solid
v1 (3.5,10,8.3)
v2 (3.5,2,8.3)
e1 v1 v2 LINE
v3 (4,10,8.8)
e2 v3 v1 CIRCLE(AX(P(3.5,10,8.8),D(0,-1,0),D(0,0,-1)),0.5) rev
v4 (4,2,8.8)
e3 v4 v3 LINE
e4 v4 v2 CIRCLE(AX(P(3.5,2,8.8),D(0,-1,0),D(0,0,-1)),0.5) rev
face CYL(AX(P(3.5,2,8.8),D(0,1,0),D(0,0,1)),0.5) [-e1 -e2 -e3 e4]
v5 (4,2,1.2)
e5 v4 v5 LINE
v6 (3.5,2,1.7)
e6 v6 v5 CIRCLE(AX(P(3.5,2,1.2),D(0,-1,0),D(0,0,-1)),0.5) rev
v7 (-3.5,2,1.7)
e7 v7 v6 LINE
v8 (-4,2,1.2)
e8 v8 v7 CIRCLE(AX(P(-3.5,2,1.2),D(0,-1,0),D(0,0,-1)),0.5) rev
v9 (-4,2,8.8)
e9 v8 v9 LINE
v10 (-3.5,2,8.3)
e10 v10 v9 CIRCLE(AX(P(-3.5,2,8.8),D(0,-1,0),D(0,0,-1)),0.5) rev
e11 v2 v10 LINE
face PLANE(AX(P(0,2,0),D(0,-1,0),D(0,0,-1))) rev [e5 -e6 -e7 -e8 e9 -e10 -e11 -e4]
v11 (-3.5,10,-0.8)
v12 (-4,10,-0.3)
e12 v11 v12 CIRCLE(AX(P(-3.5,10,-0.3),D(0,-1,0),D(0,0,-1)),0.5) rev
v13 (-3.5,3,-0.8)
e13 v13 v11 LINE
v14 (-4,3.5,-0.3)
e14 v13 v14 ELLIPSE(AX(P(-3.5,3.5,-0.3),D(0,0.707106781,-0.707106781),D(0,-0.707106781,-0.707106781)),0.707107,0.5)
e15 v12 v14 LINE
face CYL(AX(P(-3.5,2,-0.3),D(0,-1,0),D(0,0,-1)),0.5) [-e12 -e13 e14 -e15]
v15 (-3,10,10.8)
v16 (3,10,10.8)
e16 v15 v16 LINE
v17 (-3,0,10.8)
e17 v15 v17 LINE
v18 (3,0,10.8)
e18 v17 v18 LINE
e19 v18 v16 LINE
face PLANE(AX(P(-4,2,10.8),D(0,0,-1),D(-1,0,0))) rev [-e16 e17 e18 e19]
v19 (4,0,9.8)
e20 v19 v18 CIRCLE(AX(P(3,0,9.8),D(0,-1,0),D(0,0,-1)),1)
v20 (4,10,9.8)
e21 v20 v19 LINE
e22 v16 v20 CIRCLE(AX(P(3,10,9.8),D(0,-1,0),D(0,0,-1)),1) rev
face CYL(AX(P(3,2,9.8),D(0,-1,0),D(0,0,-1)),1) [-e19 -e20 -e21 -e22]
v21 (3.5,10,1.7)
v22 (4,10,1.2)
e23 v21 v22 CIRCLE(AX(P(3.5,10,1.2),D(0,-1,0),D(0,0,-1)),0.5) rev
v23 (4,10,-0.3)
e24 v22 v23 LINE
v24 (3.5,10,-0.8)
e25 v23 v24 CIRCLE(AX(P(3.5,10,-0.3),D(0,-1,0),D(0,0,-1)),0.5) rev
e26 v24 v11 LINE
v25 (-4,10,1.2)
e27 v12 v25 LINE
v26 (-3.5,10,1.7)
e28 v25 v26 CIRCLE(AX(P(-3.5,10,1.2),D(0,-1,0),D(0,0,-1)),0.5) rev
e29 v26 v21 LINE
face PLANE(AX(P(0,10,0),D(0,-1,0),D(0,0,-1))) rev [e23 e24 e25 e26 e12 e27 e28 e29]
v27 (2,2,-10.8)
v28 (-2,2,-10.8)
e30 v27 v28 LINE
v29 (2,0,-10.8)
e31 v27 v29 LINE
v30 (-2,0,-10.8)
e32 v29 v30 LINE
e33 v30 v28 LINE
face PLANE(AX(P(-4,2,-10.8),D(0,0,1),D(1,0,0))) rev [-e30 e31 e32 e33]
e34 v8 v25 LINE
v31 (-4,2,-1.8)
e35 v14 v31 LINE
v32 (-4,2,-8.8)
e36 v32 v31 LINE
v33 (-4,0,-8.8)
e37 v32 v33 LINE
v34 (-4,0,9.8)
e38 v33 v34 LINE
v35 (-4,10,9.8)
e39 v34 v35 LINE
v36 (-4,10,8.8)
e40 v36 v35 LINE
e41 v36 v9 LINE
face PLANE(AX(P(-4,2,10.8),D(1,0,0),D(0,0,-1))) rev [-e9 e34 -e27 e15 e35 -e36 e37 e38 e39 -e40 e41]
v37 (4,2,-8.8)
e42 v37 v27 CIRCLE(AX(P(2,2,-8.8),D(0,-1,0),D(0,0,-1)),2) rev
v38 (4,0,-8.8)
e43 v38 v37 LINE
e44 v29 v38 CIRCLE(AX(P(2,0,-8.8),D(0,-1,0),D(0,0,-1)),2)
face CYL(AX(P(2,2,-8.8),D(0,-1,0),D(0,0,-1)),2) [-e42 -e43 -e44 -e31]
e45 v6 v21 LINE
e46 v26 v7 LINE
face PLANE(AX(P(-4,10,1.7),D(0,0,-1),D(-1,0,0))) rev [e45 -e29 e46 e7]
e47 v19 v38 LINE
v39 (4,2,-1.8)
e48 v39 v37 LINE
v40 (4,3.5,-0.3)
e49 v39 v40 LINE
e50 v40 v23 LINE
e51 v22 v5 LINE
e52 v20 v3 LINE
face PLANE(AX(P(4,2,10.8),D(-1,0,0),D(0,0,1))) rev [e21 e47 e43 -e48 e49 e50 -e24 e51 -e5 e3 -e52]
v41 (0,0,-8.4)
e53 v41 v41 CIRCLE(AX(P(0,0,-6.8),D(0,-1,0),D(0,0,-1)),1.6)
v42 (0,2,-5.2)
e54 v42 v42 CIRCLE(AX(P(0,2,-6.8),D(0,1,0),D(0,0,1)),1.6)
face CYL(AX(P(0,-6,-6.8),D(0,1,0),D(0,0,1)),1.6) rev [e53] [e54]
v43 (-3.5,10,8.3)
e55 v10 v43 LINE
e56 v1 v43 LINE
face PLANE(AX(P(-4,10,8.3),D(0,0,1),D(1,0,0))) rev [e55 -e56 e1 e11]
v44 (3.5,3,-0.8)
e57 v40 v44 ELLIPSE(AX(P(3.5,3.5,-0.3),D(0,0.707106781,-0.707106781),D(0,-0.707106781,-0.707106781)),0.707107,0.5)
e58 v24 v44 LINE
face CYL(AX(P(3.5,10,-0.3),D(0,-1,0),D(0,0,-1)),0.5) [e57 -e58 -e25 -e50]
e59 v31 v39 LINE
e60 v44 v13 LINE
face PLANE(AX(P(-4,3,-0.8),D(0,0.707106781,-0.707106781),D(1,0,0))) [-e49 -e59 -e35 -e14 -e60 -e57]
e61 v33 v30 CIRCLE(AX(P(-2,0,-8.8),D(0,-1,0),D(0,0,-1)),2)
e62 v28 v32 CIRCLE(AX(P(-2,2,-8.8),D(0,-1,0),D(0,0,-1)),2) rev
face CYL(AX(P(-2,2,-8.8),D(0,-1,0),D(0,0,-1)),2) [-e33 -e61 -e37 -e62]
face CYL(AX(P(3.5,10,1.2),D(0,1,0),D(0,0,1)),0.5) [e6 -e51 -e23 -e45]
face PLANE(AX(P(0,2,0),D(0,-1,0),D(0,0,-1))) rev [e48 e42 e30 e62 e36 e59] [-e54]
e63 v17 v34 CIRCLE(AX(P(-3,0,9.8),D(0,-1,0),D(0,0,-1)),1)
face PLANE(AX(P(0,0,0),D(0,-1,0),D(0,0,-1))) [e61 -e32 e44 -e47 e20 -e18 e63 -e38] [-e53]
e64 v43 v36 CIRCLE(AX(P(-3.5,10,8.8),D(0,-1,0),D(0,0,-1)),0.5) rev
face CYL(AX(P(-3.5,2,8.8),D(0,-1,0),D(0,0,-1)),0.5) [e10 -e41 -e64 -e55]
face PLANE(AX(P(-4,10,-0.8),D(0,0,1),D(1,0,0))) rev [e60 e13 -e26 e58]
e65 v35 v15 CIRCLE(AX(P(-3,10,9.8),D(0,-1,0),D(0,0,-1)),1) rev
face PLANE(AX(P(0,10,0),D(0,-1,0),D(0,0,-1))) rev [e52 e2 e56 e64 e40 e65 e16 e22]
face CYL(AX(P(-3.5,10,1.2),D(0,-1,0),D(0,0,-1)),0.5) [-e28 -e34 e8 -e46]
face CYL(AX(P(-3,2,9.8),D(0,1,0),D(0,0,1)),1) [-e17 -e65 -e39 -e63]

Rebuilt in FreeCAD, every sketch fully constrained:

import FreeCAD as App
import Part
import Sketcher

V = App.Vector


def edges_at(feature, points):
    """Names of the edges that pass closest to the given points."""
    edges = feature.Shape.Edges
    near = lambda p: min(range(len(edges)), key=lambda i: edges[i].distToShape(Part.Vertex(*p))[0])
    return sorted({f"Edge{near(p) + 1}" for p in points})


def add_polygon(sketch, points):
    """Adds a closed chain of lines whose ends are joined by coincident constraints."""
    first, n = sketch.GeometryCount, len(points)
    for a, b in zip(points, points[1:] + points[:1]):
        sketch.addGeometry(Part.LineSegment(App.Vector(*a, 0), App.Vector(*b, 0)), False)
    for i in range(n):
        sketch.addConstraint(Sketcher.Constraint("Coincident", first + i, 2, first + (i + 1) % n, 1))

doc = App.newDocument("Part")
body = doc.addObject("PartDesign::Body", "Body")

sketch1 = body.newObject("Sketcher::SketchObject", "Sketch")
sketch1.AttachmentSupport = (doc.getObject("XZ_Plane"), [""])
sketch1.MapMode = "FlatFace"
add_polygon(sketch1, [(-4, -10.8), (-4, 10.8), (4, 10.8), (4, -10.8)])
sketch1.addConstraint([
    Sketcher.Constraint("Vertical", 0),
    Sketcher.Constraint("Horizontal", 1),
    Sketcher.Constraint("Vertical", 2),
    Sketcher.Constraint("Horizontal", 3),
    Sketcher.Constraint("Symmetric", 0, 2, 2, 2, -1, 1),
    Sketcher.Constraint("DistanceX", 1, 1, 1, 2, 8.0),
    Sketcher.Constraint("DistanceY", 0, 1, 0, 2, 21.6),
])
pad1 = body.newObject("PartDesign::Pad", "Pad")
pad1.Profile = sketch1
pad1.Length = 2
pad1.Reversed = True

sketch2 = body.newObject("Sketcher::SketchObject", "Sketch001")
sketch2.AttachmentSupport = (doc.getObject("XZ_Plane"), [""])
sketch2.MapMode = "FlatFace"
sketch2.AttachmentOffset = App.Placement(V(0, 0, -2), App.Rotation())
add_polygon(sketch2, [(-4, 8.3), (-4, 10.8), (4, 10.8), (4, 8.3)])
add_polygon(sketch2, [(-4, -0.8), (-4, 1.7), (4, 1.7), (4, -0.8)])
sketch2.addConstraint([
    Sketcher.Constraint("Vertical", 0),
    Sketcher.Constraint("Horizontal", 1),
    Sketcher.Constraint("Vertical", 2),
    Sketcher.Constraint("Horizontal", 3),
    Sketcher.Constraint("Vertical", 4),
    Sketcher.Constraint("Horizontal", 5),
    Sketcher.Constraint("Vertical", 6),
    Sketcher.Constraint("Horizontal", 7),
    Sketcher.Constraint("Vertical", 3, 2, 4, 2),
    Sketcher.Constraint("Vertical", 2, 2, 5, 2),
    Sketcher.Constraint("Equal", 2, 4),
    Sketcher.Constraint("DistanceX", 1, 1, 1, 2, 8.0),
    Sketcher.Constraint("DistanceY", 0, 1, 0, 2, 2.5),
    Sketcher.Constraint("DistanceX", 0, 2, -1, 1, 4.0),
    Sketcher.Constraint("DistanceY", -1, 1, 0, 2, 10.8),
    Sketcher.Constraint("DistanceY", -1, 1, 4, 2, 1.7),
])
pad2 = body.newObject("PartDesign::Pad", "Pad001")
pad2.Profile = sketch2
pad2.Length = 8
pad2.Reversed = True

sketch3 = body.newObject("Sketcher::SketchObject", "Sketch002")
sketch3.AttachmentSupport = (doc.getObject("XZ_Plane"), [""])
sketch3.MapMode = "FlatFace"
sketch3.AttachmentOffset = App.Placement(V(0, 0, -2), App.Rotation())
sketch3.addGeometry(Part.Circle(V(0, -6.8, 0), V(0, 0, 1), 1.6), False)
sketch3.addConstraint([
    Sketcher.Constraint("PointOnObject", 0, 3, -2),
    Sketcher.Constraint("Diameter", 0, 3.2),
    Sketcher.Constraint("DistanceY", 0, 3, -1, 1, 6.8),
])
pocket1 = body.newObject("PartDesign::Pocket", "Pocket")
pocket1.Profile = sketch3
pocket1.Length = 8
pocket1.Reversed = True
doc.recompute()

fillet = body.newObject("PartDesign::Fillet", "Fillet")
fillet.Base = (pocket1, edges_at(pocket1, [(-4, 1, -10.8)]))
fillet.Radius = 2
doc.recompute()

fillet2 = body.newObject("PartDesign::Fillet", "Fillet001")
fillet2.Base = (fillet, edges_at(fillet, [(4, 1, -10.8)]))
fillet2.Radius = 2
doc.recompute()

fillet3 = body.newObject("PartDesign::Fillet", "Fillet002")
fillet3.Base = (fillet2, edges_at(fillet2, [(4, 5, 10.8)]))
fillet3.Radius = 1
doc.recompute()

fillet4 = body.newObject("PartDesign::Fillet", "Fillet003")
fillet4.Base = (fillet3, edges_at(fillet3, [(-4, 5, 10.8)]))
fillet4.Radius = 1
doc.recompute()

chamfer = body.newObject("PartDesign::Chamfer", "Chamfer")
chamfer.Base = (fillet4, edges_at(fillet4, [(0, 2, -0.8)]))
chamfer.Size = 1
doc.recompute()

fillet5 = body.newObject("PartDesign::Fillet", "Fillet004")
fillet5.Base = (chamfer, edges_at(chamfer, [(4, 6.5, -0.8)]))
fillet5.Radius = 0.5
doc.recompute()

fillet6 = body.newObject("PartDesign::Fillet", "Fillet005")
fillet6.Base = (fillet5, edges_at(fillet5, [(-4, 6.5, -0.8)]))
fillet6.Radius = 0.5
doc.recompute()

fillet7 = body.newObject("PartDesign::Fillet", "Fillet006")
fillet7.Base = (fillet6, edges_at(fillet6, [(4, 6, 8.3)]))
fillet7.Radius = 0.5
doc.recompute()

fillet8 = body.newObject("PartDesign::Fillet", "Fillet007")
fillet8.Base = (fillet7, edges_at(fillet7, [(-4, 6, 8.3)]))
fillet8.Radius = 0.5
doc.recompute()

fillet9 = body.newObject("PartDesign::Fillet", "Fillet008")
fillet9.Base = (fillet8, edges_at(fillet8, [(-4, 6, 1.7)]))
fillet9.Radius = 0.5
doc.recompute()

fillet10 = body.newObject("PartDesign::Fillet", "Fillet009")
fillet10.Base = (fillet9, edges_at(fillet9, [(4, 6, 1.7)]))
fillet10.Radius = 0.5

doc.recompute()
